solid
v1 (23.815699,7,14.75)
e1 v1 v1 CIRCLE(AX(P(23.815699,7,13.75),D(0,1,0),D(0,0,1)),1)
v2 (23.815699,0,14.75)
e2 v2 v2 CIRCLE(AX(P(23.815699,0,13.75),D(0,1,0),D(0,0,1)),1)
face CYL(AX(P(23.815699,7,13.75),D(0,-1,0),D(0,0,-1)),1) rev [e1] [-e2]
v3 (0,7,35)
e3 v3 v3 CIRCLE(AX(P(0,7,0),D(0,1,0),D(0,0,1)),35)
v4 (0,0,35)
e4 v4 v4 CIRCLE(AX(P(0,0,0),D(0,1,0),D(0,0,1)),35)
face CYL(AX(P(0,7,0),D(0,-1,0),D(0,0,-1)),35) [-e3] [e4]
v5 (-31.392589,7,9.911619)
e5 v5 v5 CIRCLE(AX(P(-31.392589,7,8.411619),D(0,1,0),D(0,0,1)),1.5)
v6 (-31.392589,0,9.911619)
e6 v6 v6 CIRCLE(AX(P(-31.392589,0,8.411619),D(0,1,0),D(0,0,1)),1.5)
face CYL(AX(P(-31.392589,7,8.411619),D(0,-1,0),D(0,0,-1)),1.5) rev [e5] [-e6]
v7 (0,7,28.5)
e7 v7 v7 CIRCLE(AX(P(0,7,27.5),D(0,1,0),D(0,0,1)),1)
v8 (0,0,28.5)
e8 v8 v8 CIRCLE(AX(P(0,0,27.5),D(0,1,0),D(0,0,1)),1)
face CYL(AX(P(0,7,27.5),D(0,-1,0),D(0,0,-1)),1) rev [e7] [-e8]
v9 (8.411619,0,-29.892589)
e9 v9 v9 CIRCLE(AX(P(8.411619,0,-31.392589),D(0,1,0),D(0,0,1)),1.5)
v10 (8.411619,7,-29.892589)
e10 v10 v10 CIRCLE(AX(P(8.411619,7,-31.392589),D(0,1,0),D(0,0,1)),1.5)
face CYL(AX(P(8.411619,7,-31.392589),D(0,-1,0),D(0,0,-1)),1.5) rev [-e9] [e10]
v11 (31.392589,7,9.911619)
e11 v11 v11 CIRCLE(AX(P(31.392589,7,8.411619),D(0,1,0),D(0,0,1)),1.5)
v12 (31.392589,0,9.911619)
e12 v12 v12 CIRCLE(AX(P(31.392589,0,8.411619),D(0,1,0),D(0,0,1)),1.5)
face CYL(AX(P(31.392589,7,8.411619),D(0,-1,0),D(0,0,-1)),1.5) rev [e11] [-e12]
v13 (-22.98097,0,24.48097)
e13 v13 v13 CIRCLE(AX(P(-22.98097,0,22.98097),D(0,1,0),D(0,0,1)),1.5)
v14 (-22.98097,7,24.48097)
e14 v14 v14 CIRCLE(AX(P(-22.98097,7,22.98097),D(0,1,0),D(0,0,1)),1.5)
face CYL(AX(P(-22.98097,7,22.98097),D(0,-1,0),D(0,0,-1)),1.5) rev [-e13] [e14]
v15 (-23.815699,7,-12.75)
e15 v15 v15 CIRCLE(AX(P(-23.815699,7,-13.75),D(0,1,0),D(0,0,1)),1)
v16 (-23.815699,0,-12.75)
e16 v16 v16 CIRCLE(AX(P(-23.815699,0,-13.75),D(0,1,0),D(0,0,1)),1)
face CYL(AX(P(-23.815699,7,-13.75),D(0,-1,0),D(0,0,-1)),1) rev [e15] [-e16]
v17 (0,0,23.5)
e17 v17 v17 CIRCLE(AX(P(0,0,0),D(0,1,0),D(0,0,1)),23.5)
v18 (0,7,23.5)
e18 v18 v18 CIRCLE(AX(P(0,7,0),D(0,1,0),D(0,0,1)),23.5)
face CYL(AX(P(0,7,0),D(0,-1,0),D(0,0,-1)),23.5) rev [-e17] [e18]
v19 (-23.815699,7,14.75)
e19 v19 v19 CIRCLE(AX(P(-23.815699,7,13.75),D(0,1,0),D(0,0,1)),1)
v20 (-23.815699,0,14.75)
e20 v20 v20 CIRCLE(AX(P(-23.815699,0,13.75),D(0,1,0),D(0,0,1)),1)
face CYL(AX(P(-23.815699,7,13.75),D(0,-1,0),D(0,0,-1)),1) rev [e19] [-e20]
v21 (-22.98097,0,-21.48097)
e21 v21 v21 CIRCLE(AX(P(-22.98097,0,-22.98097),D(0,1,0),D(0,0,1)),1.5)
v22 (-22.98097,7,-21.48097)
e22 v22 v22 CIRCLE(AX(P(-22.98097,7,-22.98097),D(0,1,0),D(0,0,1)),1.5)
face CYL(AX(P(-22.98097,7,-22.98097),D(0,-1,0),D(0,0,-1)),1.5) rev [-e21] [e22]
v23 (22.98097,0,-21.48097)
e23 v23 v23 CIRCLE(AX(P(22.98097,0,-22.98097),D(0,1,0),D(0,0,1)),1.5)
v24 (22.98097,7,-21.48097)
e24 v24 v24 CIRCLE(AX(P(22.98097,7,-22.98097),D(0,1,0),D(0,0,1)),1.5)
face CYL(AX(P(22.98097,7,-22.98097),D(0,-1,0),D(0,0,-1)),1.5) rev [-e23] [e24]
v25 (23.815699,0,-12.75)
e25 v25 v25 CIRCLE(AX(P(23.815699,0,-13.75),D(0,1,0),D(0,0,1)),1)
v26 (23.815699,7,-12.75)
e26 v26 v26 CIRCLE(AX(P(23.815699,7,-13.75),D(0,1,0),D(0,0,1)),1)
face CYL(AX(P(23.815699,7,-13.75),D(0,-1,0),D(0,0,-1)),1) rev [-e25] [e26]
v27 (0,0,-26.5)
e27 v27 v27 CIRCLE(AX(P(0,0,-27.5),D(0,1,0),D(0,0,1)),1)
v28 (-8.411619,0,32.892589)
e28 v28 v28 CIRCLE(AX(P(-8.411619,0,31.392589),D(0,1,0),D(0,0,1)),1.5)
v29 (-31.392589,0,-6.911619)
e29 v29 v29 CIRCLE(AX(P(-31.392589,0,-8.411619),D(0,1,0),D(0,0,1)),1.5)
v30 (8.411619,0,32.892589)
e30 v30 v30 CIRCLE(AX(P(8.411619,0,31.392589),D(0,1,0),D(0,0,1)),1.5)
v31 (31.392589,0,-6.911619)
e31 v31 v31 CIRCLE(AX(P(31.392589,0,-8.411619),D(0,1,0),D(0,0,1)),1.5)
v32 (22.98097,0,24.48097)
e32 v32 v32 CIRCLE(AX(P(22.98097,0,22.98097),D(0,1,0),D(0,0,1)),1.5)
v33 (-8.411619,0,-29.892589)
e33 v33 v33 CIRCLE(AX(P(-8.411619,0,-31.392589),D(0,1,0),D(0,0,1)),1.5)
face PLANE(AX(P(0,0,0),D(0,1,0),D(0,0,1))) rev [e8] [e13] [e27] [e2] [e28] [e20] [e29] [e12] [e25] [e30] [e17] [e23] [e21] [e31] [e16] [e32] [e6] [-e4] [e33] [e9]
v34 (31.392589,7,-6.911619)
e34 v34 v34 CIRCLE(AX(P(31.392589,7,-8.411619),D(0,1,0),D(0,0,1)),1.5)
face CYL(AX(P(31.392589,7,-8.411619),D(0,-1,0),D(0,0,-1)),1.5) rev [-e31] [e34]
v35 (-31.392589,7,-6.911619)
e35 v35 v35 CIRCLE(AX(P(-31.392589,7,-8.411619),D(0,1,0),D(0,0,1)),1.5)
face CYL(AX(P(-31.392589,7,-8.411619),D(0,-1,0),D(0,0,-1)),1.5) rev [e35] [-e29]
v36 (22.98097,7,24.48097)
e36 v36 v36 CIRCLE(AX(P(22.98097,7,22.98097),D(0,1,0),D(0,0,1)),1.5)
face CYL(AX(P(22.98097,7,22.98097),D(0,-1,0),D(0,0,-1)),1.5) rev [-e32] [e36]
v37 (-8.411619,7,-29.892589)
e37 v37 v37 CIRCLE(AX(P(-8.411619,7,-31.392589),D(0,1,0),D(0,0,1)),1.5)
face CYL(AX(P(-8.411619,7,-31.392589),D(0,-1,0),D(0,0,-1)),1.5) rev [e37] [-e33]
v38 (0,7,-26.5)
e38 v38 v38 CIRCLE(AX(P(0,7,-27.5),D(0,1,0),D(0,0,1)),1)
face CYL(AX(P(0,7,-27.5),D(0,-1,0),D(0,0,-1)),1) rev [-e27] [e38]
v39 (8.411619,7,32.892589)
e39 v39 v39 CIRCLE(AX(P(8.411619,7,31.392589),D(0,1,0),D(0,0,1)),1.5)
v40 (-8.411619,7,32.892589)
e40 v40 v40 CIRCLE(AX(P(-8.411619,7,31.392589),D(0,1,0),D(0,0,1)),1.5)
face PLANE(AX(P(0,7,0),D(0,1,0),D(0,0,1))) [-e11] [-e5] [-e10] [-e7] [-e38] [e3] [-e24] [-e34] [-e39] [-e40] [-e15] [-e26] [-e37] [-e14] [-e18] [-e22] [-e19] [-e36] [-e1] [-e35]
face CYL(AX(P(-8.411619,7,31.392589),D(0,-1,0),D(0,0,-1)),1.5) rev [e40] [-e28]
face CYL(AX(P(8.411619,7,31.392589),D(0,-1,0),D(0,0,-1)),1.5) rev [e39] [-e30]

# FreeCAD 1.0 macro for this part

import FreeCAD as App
import Part
import Sketcher

doc = App.newDocument("Part")
params = doc.addObject("Spreadsheet::Sheet", "Params")
for row, (alias, value) in enumerate([
    ("sketch1_diameter", "70 mm"),
    ("sketch1_diameter2", "3 mm"),
    ("sketch1_diameter3", "2 mm"),
    ("sketch1_diameter4", "47 mm"),
    ("pad1_length", "7 mm"),
], start=1):
    params.set(f"A{row}", alias)
    params.set(f"B{row}", "=" + value)
    params.setAlias(f"B{row}", alias)

body = doc.addObject("PartDesign::Body", "Body")

sketch1 = body.newObject("Sketcher::SketchObject", "Sketch")
sketch1.AttachmentSupport = (doc.getObject("XZ_Plane"), [""])
sketch1.MapMode = "FlatFace"
sketch1.addGeometry(Part.Circle(App.Vector(0, 0, 0), App.Vector(0, 0, 1), 35), False)
sketch1.addGeometry(Part.Circle(App.Vector(-22.98097, -22.98097, 0), App.Vector(0, 0, 1), 1.5), False)
sketch1.addGeometry(Part.Circle(App.Vector(-31.392589, -8.411619, 0), App.Vector(0, 0, 1), 1.5), False)
sketch1.addGeometry(Part.Circle(App.Vector(-23.815699, -13.75, 0), App.Vector(0, 0, 1), 1), False)
sketch1.addGeometry(Part.Circle(App.Vector(-8.411619, -31.392589, 0), App.Vector(0, 0, 1), 1.5), False)
sketch1.addGeometry(Part.Circle(App.Vector(-31.392589, 8.411619, 0), App.Vector(0, 0, 1), 1.5), False)
sketch1.addGeometry(Part.Circle(App.Vector(-23.815699, 13.75, 0), App.Vector(0, 0, 1), 1), False)
sketch1.addGeometry(Part.Circle(App.Vector(-22.98097, 22.98097, 0), App.Vector(0, 0, 1), 1.5), False)
sketch1.addGeometry(Part.Circle(App.Vector(-8.411619, 31.392589, 0), App.Vector(0, 0, 1), 1.5), False)
sketch1.addGeometry(Part.Circle(App.Vector(0, -27.5, 0), App.Vector(0, 0, 1), 1), False)
sketch1.addGeometry(Part.Circle(App.Vector(8.411619, -31.392589, 0), App.Vector(0, 0, 1), 1.5), False)
sketch1.addGeometry(Part.Circle(App.Vector(22.98097, -22.98097, 0), App.Vector(0, 0, 1), 1.5), False)
sketch1.addGeometry(Part.Circle(App.Vector(23.815699, -13.75, 0), App.Vector(0, 0, 1), 1), False)
sketch1.addGeometry(Part.Circle(App.Vector(31.392589, -8.411619, 0), App.Vector(0, 0, 1), 1.5), False)
sketch1.addGeometry(Part.Circle(App.Vector(0, 0, 0), App.Vector(0, 0, 1), 23.5), False)
sketch1.addGeometry(Part.Circle(App.Vector(0, 27.5, 0), App.Vector(0, 0, 1), 1), False)
sketch1.addGeometry(Part.Circle(App.Vector(8.411619, 31.392589, 0), App.Vector(0, 0, 1), 1.5), False)
sketch1.addGeometry(Part.Circle(App.Vector(23.815699, 13.75, 0), App.Vector(0, 0, 1), 1), False)
sketch1.addGeometry(Part.Circle(App.Vector(31.392589, 8.411619, 0), App.Vector(0, 0, 1), 1.5), False)
sketch1.addGeometry(Part.Circle(App.Vector(22.98097, 22.98097, 0), App.Vector(0, 0, 1), 1.5), False)
sketch1.addConstraint(Sketcher.Constraint("Coincident", 0, 3, -1, 1))
sketch1.addConstraint(Sketcher.Constraint("Coincident", 14, 3, -1, 1))
sketch1.addConstraint(Sketcher.Constraint("Equal", 1, 2))
sketch1.addConstraint(Sketcher.Constraint("Equal", 2, 4))
sketch1.addConstraint(Sketcher.Constraint("Equal", 4, 5))
sketch1.addConstraint(Sketcher.Constraint("Equal", 3, 6))
sketch1.addConstraint(Sketcher.Constraint("Equal", 5, 7))
sketch1.addConstraint(Sketcher.Constraint("Equal", 7, 8))
sketch1.addConstraint(Sketcher.Constraint("Equal", 6, 9))
sketch1.addConstraint(Sketcher.Constraint("Equal", 8, 10))
sketch1.addConstraint(Sketcher.Constraint("Equal", 10, 11))
sketch1.addConstraint(Sketcher.Constraint("Equal", 9, 12))
sketch1.addConstraint(Sketcher.Constraint("Equal", 11, 13))
sketch1.addConstraint(Sketcher.Constraint("Equal", 12, 15))
sketch1.addConstraint(Sketcher.Constraint("Equal", 13, 16))
sketch1.addConstraint(Sketcher.Constraint("Equal", 15, 17))
sketch1.addConstraint(Sketcher.Constraint("Equal", 16, 18))
sketch1.addConstraint(Sketcher.Constraint("Equal", 18, 19))
sketch1.addConstraint(Sketcher.Constraint("Symmetric", 8, 3, 10, 3, -1, 1))
sketch1.addConstraint(Sketcher.Constraint("Symmetric", 7, 3, 11, 3, -1, 1))
sketch1.addConstraint(Sketcher.Constraint("Symmetric", 6, 3, 12, 3, -1, 1))
sketch1.addConstraint(Sketcher.Constraint("Symmetric", 5, 3, 13, 3, -1, 1))
sketch1.addConstraint(Sketcher.Constraint("Symmetric", 9, 3, 15, 3, -1, 1))
sketch1.addConstraint(Sketcher.Constraint("Symmetric", 4, 3, 16, 3, -1, 1))
sketch1.addConstraint(Sketcher.Constraint("Symmetric", 3, 3, 17, 3, -1, 1))
sketch1.addConstraint(Sketcher.Constraint("Symmetric", 2, 3, 18, 3, -1, 1))
sketch1.addConstraint(Sketcher.Constraint("Symmetric", 1, 3, 19, 3, -1, 1))
sketch1.addConstraint(Sketcher.Constraint("Symmetric", 4, 3, 10, 3, -2))
sketch1.addConstraint(Sketcher.Constraint("Symmetric", 1, 3, 11, 3, -2))
sketch1.addConstraint(Sketcher.Constraint("Symmetric", 3, 3, 12, 3, -2))
sketch1.addConstraint(Sketcher.Constraint("Symmetric", 2, 3, 13, 3, -2))
sketch1.addConstraint(Sketcher.Constraint("PointOnObject", 9, 3, -2))
sketch1.addConstraint(Sketcher.Constraint("Diameter", 0, 70.0))
sketch1.addConstraint(Sketcher.Constraint("Diameter", 1, 3.0))
sketch1.addConstraint(Sketcher.Constraint("Diameter", 3, 2.0))
sketch1.addConstraint(Sketcher.Constraint("Diameter", 14, 47.0))
sketch1.addConstraint(Sketcher.Constraint("DistanceY", 9, 3, -1, 1, 27.5))
sketch1.addConstraint(Sketcher.Constraint("DistanceY", 3, 3, 6, 3, 27.5))
sketch1.addConstraint(Sketcher.Constraint("DistanceX", 3, 3, -1, 1, 23.815699))
sketch1.addConstraint(Sketcher.Constraint("DistanceX", 1, 3, -1, 1, 22.98097))
sketch1.addConstraint(Sketcher.Constraint("DistanceY", 1, 3, -1, 1, 22.98097))
sketch1.addConstraint(Sketcher.Constraint("DistanceX", 2, 3, -1, 1, 31.392589))
sketch1.addConstraint(Sketcher.Constraint("DistanceY", 2, 3, -1, 1, 8.411619))
sketch1.addConstraint(Sketcher.Constraint("DistanceX", 4, 3, -1, 1, 8.411619))
sketch1.addConstraint(Sketcher.Constraint("DistanceY", 4, 3, -1, 1, 31.392589))
sketch1.setExpression("Constraints[32]", "Params.sketch1_diameter")
sketch1.setExpression("Constraints[33]", "Params.sketch1_diameter2")
sketch1.setExpression("Constraints[34]", "Params.sketch1_diameter3")
sketch1.setExpression("Constraints[35]", "Params.sketch1_diameter4")
pad1 = body.newObject("PartDesign::Pad", "Pad")
pad1.Profile = sketch1
pad1.setExpression("Length", "Params.pad1_length")
pad1.Reversed = True

doc.recompute()
